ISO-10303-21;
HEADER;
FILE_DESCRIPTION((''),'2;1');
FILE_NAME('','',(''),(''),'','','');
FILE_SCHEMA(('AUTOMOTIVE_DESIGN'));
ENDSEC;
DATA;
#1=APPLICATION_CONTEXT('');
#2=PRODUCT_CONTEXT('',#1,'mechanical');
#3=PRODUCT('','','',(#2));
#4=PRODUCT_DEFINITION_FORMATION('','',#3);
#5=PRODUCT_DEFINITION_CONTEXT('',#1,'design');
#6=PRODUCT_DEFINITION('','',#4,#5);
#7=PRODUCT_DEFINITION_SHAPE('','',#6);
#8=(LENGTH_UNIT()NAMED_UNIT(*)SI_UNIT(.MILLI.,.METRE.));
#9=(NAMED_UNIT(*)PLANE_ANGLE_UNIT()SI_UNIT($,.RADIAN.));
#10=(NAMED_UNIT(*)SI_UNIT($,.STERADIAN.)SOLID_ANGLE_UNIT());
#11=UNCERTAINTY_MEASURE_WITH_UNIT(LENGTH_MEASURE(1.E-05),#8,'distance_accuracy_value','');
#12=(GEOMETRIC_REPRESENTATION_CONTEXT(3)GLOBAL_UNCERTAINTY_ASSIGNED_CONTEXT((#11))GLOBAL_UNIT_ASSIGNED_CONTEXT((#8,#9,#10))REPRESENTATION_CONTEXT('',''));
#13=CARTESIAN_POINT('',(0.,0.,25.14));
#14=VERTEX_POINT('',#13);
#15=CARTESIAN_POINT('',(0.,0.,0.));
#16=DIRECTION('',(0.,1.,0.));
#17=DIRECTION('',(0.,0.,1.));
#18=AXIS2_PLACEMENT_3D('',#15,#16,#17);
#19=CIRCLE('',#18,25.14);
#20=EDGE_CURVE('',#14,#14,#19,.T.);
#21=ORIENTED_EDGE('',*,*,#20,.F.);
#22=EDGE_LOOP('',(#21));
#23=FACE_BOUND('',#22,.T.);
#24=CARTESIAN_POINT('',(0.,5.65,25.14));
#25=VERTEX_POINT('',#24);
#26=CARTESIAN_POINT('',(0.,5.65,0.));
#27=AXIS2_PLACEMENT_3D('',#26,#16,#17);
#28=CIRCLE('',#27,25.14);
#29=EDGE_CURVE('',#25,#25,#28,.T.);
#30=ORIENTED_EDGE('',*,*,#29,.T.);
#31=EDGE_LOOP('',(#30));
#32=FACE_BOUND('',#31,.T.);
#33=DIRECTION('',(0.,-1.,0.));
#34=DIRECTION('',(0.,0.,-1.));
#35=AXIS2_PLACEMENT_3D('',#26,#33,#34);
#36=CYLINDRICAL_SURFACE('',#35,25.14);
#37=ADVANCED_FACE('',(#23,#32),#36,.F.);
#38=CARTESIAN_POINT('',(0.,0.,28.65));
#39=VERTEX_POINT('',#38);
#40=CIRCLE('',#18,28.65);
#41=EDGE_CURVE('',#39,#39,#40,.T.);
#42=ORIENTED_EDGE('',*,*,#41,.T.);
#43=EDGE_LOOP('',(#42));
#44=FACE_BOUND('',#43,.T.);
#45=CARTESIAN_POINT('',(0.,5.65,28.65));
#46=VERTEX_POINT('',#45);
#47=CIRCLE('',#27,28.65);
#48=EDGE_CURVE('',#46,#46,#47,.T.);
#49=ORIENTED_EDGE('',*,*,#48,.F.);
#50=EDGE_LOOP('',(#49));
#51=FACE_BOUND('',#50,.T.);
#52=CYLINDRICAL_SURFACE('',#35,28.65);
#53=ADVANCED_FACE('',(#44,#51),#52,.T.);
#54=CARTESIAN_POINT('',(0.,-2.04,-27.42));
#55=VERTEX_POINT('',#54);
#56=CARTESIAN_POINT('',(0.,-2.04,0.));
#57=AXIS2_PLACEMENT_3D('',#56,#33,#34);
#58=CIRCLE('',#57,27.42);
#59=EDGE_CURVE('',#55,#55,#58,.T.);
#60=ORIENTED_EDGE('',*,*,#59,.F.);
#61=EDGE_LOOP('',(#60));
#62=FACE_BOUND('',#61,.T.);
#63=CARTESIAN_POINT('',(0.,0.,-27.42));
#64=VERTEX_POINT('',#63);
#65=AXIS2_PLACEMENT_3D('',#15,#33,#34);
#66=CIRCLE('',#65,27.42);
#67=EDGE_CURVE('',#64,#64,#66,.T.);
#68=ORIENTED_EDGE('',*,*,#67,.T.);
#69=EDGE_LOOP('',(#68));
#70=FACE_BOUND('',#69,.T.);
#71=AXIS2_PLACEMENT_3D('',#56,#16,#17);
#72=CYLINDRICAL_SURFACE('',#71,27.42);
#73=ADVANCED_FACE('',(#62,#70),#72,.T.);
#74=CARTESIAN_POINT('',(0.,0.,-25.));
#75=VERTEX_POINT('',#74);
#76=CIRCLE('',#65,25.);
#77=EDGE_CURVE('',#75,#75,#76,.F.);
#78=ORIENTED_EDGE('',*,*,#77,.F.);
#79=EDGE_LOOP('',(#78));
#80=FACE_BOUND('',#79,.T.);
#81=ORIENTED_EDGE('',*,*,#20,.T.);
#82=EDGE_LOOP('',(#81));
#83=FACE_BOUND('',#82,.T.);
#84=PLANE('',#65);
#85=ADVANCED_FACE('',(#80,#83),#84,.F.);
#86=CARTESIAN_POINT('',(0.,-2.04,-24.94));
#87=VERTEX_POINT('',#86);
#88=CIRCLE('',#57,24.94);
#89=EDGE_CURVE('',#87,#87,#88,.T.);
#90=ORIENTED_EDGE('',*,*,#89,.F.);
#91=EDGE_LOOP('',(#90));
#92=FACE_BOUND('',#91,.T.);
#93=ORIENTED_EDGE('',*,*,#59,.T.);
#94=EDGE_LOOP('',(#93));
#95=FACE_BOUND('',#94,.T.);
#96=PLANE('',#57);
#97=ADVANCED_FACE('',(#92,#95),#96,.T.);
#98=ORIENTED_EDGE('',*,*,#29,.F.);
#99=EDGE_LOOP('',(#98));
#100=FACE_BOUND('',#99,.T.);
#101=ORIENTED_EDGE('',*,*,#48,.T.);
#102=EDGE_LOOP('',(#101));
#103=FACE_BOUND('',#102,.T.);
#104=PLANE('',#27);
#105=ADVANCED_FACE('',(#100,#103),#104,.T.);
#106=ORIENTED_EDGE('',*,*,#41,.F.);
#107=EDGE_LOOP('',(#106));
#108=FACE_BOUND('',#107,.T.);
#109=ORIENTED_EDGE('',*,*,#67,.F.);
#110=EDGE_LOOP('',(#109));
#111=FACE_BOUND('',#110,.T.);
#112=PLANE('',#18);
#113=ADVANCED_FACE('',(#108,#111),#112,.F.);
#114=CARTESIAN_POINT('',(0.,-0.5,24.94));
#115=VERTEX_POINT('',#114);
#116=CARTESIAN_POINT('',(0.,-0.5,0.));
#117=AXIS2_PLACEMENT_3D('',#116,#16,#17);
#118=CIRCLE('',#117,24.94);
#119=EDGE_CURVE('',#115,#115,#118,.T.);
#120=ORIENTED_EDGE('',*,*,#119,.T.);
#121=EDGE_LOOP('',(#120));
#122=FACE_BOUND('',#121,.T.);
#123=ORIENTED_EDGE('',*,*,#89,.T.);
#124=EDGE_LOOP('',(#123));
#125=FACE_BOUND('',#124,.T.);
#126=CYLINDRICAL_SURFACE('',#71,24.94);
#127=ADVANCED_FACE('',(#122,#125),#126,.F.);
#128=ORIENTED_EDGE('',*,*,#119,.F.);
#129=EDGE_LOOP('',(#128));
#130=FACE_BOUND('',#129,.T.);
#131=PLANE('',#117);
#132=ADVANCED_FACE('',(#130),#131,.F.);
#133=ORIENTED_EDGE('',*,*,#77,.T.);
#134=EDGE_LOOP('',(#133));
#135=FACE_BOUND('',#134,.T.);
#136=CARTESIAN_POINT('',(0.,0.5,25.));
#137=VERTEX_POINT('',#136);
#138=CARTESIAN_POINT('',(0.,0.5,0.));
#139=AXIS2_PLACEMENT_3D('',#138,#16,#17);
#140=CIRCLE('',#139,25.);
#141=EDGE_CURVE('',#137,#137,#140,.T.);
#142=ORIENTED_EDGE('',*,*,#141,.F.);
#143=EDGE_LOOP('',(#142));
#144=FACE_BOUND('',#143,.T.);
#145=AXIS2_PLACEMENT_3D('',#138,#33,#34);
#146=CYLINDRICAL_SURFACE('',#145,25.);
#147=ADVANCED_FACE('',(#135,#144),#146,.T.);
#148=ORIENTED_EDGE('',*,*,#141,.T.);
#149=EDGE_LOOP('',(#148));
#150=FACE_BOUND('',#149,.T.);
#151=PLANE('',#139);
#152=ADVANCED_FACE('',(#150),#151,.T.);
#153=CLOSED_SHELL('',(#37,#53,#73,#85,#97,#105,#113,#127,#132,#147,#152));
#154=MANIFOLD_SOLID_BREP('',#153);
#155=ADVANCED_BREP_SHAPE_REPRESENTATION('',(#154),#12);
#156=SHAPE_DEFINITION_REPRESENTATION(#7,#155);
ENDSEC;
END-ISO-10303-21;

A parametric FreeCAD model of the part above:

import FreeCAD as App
import Part
import Sketcher

V = App.Vector
Q = App.Units.Quantity

doc = App.newDocument("Part")
body = doc.addObject("PartDesign::Body", "Body")

sketch1 = doc.addObject("Sketcher::SketchObject", "Sketch")
body.addObject(sketch1)
sketch1.AttachmentSupport = (doc.XZ_Plane, [""])
sketch1.MapMode = "FlatFace"
sketch1.addGeometry(Part.Circle(V(0, 0, 0), V(0, 0, 1), 29), False)
sketch1.addGeometry(Part.Circle(V(0, 0, 0), V(0, 0, 1), 25), False)
sketch1.addConstraint(Sketcher.Constraint("Coincident", 0, 3, -1, 1))
sketch1.addConstraint(Sketcher.Constraint("Coincident", 1, 3, -1, 1))
sketch1.addConstraint(Sketcher.Constraint("Diameter", 0, Q("57.3 mm")))
sketch1.addConstraint(Sketcher.Constraint("Diameter", 1, Q("50.28 mm")))
pad1 = doc.addObject("PartDesign::Pad", "Pad")
body.addObject(pad1)
pad1.Profile = sketch1
pad1.Length = 5.65
pad1.Reversed = True

sketch2 = doc.addObject("Sketcher::SketchObject", "Sketch001")
body.addObject(sketch2)
sketch2.AttachmentSupport = (doc.XZ_Plane, [""])
sketch2.MapMode = "FlatFace"
sketch2.addGeometry(Part.Circle(V(0, 0, 0), V(0, 0, 1), 27), False)
sketch2.addGeometry(Part.Circle(V(0, 0, 0), V(0, 0, 1), 25), False)
sketch2.addConstraint(Sketcher.Constraint("Coincident", 0, 3, -1, 1))
sketch2.addConstraint(Sketcher.Constraint("Coincident", 1, 3, -1, 1))
sketch2.addConstraint(Sketcher.Constraint("Diameter", 0, Q("54.84 mm")))
sketch2.addConstraint(Sketcher.Constraint("Diameter", 1, Q("49.88 mm")))
pad2 = doc.addObject("PartDesign::Pad", "Pad001")
body.addObject(pad2)
pad2.Profile = sketch2
pad2.Length = 2.04

sketch3 = doc.addObject("Sketcher::SketchObject", "Sketch002")
body.addObject(sketch3)
sketch3.AttachmentSupport = (doc.XZ_Plane, [""])
sketch3.MapMode = "FlatFace"
sketch3.addGeometry(Part.Circle(V(0, 0, 0), V(0, 0, 1), 25), False)
sketch3.addConstraint(Sketcher.Constraint("Coincident", 0, 3, -1, 1))
sketch3.addConstraint(Sketcher.Constraint("Diameter", 0, Q("50 mm")))
pad3 = doc.addObject("PartDesign::Pad", "Pad002")
body.addObject(pad3)
pad3.Profile = sketch3
pad3.Length = 1
pad3.Midplane = True

doc.recompute()
